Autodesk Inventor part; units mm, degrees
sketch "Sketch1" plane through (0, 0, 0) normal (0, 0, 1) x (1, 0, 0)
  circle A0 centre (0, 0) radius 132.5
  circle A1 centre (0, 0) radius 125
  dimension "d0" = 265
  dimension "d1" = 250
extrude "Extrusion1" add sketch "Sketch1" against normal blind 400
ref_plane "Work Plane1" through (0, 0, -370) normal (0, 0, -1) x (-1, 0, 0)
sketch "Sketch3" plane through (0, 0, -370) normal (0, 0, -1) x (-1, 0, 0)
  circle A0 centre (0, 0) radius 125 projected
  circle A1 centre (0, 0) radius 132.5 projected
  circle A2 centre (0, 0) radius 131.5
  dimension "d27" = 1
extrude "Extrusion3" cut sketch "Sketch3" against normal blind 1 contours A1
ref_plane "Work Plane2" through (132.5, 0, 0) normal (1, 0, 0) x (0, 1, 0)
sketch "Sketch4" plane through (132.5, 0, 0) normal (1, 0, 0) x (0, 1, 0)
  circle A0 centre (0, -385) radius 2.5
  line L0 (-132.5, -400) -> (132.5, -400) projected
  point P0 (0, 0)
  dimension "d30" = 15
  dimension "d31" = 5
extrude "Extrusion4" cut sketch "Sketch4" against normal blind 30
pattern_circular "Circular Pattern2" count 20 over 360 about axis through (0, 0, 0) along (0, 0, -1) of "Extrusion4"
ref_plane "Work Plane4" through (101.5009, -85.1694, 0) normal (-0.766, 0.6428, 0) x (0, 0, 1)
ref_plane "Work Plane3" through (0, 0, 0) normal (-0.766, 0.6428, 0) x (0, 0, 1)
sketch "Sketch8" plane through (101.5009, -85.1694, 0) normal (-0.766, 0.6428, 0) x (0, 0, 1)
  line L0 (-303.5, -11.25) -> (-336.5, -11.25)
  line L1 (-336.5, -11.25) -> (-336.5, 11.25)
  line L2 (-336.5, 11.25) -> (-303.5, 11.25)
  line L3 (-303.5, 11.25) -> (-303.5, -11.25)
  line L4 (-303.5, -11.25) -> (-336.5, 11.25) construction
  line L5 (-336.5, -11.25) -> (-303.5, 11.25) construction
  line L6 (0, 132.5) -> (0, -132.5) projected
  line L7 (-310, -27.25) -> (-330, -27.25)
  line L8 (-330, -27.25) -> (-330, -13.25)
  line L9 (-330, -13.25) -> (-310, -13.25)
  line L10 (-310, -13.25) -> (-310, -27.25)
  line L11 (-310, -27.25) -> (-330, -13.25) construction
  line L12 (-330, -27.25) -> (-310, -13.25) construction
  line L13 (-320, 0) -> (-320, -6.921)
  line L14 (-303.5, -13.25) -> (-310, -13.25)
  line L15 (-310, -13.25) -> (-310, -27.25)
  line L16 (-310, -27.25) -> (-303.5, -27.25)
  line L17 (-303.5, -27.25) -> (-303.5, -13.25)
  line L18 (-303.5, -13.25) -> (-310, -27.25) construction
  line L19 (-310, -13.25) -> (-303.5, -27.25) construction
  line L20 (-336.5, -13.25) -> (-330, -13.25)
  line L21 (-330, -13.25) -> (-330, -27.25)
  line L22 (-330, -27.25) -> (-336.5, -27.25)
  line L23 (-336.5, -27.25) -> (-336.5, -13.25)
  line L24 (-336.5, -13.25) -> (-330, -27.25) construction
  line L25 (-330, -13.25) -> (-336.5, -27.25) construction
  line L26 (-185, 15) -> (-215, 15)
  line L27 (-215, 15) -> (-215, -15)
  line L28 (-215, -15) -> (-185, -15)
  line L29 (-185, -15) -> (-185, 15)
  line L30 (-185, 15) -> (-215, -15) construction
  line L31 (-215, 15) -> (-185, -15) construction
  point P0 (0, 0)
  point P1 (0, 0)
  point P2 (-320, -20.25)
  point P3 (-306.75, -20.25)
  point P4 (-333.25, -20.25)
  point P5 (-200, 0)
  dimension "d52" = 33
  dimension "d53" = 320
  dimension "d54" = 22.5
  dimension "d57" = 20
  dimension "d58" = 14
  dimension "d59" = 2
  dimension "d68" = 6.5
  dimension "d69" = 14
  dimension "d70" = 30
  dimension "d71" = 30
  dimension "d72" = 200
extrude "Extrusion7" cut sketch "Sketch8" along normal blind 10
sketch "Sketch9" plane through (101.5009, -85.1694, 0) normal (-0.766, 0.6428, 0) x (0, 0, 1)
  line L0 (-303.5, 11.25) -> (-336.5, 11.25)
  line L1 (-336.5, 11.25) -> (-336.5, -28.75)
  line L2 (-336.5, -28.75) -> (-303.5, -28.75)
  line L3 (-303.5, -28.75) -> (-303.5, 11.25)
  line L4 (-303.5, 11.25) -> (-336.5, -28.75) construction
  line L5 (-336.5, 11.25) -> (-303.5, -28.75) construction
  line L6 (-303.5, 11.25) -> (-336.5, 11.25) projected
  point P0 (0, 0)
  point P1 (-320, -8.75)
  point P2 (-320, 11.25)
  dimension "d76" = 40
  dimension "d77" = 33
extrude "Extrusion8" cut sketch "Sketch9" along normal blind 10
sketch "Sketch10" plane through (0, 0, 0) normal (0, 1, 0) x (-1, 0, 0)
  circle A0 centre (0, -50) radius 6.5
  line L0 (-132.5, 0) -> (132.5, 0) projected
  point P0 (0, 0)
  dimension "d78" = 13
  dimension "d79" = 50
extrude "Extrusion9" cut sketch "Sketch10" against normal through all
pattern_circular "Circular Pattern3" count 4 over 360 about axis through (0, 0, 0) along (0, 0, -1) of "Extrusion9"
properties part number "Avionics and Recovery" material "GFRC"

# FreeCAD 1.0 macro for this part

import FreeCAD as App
import Part
import Sketcher
from FreeCAD import Vector

doc = App.newDocument("Part")
body = doc.addObject("PartDesign::Body", "Body")

sketch1 = body.newObject("Sketcher::SketchObject", "Sketch")
sketch1.AttachmentSupport = (doc.getObject("XY_Plane"), [""])
sketch1.MapMode = "FlatFace"
sketch1.addGeometry(Part.Circle(Vector(0, 0, 0), Vector(0, 0, 1), 132.5), False)
sketch1.addGeometry(Part.Circle(Vector(0, 0, 0), Vector(0, 0, 1), 125), False)
sketch1.addConstraint(Sketcher.Constraint("Coincident", 0, 3, -1, 1))
sketch1.addConstraint(Sketcher.Constraint("Coincident", 1, 3, -1, 1))
sketch1.addConstraint(Sketcher.Constraint("Diameter", 0, 265.0))
sketch1.addConstraint(Sketcher.Constraint("Diameter", 1, 250.0))
pad1 = body.newObject("PartDesign::Pad", "Pad")
pad1.Profile = sketch1
pad1.Length = 400
pad1.Reversed = True

sketch2 = body.newObject("Sketcher::SketchObject", "Sketch001")
sketch2.AttachmentSupport = (doc.getObject("XY_Plane"), [""])
sketch2.MapMode = "FlatFace"
sketch2.AttachmentOffset = App.Placement(Vector(0, 0, -370), App.Rotation())
sketch2.addGeometry(Part.Circle(Vector(0, 0, 0), Vector(0, 0, 1), 132.5), False)
sketch2.addGeometry(Part.Circle(Vector(0, 0, 0), Vector(0, 0, 1), 131.5), False)
sketch2.addConstraint(Sketcher.Constraint("Coincident", 0, 3, -1, 1))
sketch2.addConstraint(Sketcher.Constraint("Coincident", 1, 3, -1, 1))
sketch2.addConstraint(Sketcher.Constraint("Diameter", 0, 265.0))
sketch2.addConstraint(Sketcher.Constraint("Diameter", 1, 263.0))
pocket1 = body.newObject("PartDesign::Pocket", "Pocket")
pocket1.Profile = sketch2
pocket1.Length = 1
pocket1.Reversed = True

sketch3 = body.newObject("Sketcher::SketchObject", "Sketch002")
sketch3.AttachmentSupport = (doc.getObject("YZ_Plane"), [""])
sketch3.MapMode = "FlatFace"
sketch3.AttachmentOffset = App.Placement(Vector(0, 0, 132.5), App.Rotation())
sketch3.addGeometry(Part.Circle(Vector(0, -385, 0), Vector(0, 0, 1), 2.5), False)
sketch3.addConstraint(Sketcher.Constraint("PointOnObject", 0, 3, -2))
sketch3.addConstraint(Sketcher.Constraint("Diameter", 0, 5.0))
sketch3.addConstraint(Sketcher.Constraint("DistanceY", 0, 3, -1, 1, 385.0))
pocket2 = body.newObject("PartDesign::Pocket", "Pocket001")
pocket2.Profile = sketch3
pocket2.Length = 30
doc.recompute()

polarpattern = body.newObject("PartDesign::PolarPattern", "PolarPattern")
polarpattern.Originals = [pocket2]
polarpattern.Axis = (doc.getObject("Z_Axis"), [""])
polarpattern.Angle = 360
polarpattern.Occurrences = 20
body.Tip = polarpattern

sketch4 = body.newObject("Sketcher::SketchObject", "Sketch003")
sketch4.Placement = App.Placement(Vector(101.5009, -85.1694, 0), App.Rotation(Vector(0, 0, 1), Vector(0.64278761, 0.766044443, 0), Vector(-0.766044443, 0.64278761, 0), "ZXY"))
sketch4.addGeometry(Part.LineSegment(Vector(-336.5, -11.25, 0), Vector(-303.5, -11.25, 0)), False)
sketch4.addGeometry(Part.LineSegment(Vector(-303.5, -11.25, 0), Vector(-303.5, 11.25, 0)), False)
sketch4.addGeometry(Part.LineSegment(Vector(-303.5, 11.25, 0), Vector(-336.5, 11.25, 0)), False)
sketch4.addGeometry(Part.LineSegment(Vector(-336.5, 11.25, 0), Vector(-336.5, -11.25, 0)), False)
sketch4.addGeometry(Part.LineSegment(Vector(-303.5, -27.25, 0), Vector(-303.5, -13.25, 0)), False)
sketch4.addGeometry(Part.LineSegment(Vector(-303.5, -13.25, 0), Vector(-336.5, -13.25, 0)), False)
sketch4.addGeometry(Part.LineSegment(Vector(-336.5, -13.25, 0), Vector(-336.5, -27.25, 0)), False)
sketch4.addGeometry(Part.LineSegment(Vector(-336.5, -27.25, 0), Vector(-303.5, -27.25, 0)), False)
sketch4.addGeometry(Part.LineSegment(Vector(-185, -15, 0), Vector(-185, 15, 0)), False)
sketch4.addGeometry(Part.LineSegment(Vector(-185, 15, 0), Vector(-215, 15, 0)), False)
sketch4.addGeometry(Part.LineSegment(Vector(-215, 15, 0), Vector(-215, -15, 0)), False)
sketch4.addGeometry(Part.LineSegment(Vector(-215, -15, 0), Vector(-185, -15, 0)), False)
sketch4.addConstraint(Sketcher.Constraint("Coincident", 0, 2, 1, 1))
sketch4.addConstraint(Sketcher.Constraint("Coincident", 1, 2, 2, 1))
sketch4.addConstraint(Sketcher.Constraint("Coincident", 2, 2, 3, 1))
sketch4.addConstraint(Sketcher.Constraint("Coincident", 3, 2, 0, 1))
sketch4.addConstraint(Sketcher.Constraint("Coincident", 4, 2, 5, 1))
sketch4.addConstraint(Sketcher.Constraint("Coincident", 5, 2, 6, 1))
sketch4.addConstraint(Sketcher.Constraint("Coincident", 6, 2, 7, 1))
sketch4.addConstraint(Sketcher.Constraint("Coincident", 7, 2, 4, 1))
sketch4.addConstraint(Sketcher.Constraint("Coincident", 8, 2, 9, 1))
sketch4.addConstraint(Sketcher.Constraint("Coincident", 9, 2, 10, 1))
sketch4.addConstraint(Sketcher.Constraint("Coincident", 10, 2, 11, 1))
sketch4.addConstraint(Sketcher.Constraint("Coincident", 11, 2, 8, 1))
sketch4.addConstraint(Sketcher.Constraint("Horizontal", 0))
sketch4.addConstraint(Sketcher.Constraint("Vertical", 1))
sketch4.addConstraint(Sketcher.Constraint("Horizontal", 2))
sketch4.addConstraint(Sketcher.Constraint("Vertical", 3))
sketch4.addConstraint(Sketcher.Constraint("Vertical", 4))
sketch4.addConstraint(Sketcher.Constraint("Horizontal", 5))
sketch4.addConstraint(Sketcher.Constraint("Vertical", 6))
sketch4.addConstraint(Sketcher.Constraint("Horizontal", 7))
sketch4.addConstraint(Sketcher.Constraint("Vertical", 8))
sketch4.addConstraint(Sketcher.Constraint("Horizontal", 9))
sketch4.addConstraint(Sketcher.Constraint("Vertical", 10))
sketch4.addConstraint(Sketcher.Constraint("Horizontal", 11))
sketch4.addConstraint(Sketcher.Constraint("Vertical", 1, 2, 4, 2))
sketch4.addConstraint(Sketcher.Constraint("Vertical", 3, 2, 5, 2))
sketch4.addConstraint(Sketcher.Constraint("Equal", 11, 8))
sketch4.addConstraint(Sketcher.Constraint("DistanceX", 0, 1, 0, 2, 33.0))
sketch4.addConstraint(Sketcher.Constraint("DistanceX", 9, 2, 9, 1, 30.0))
sketch4.addConstraint(Sketcher.Constraint("DistanceY", 4, 1, 4, 2, 14.0))
sketch4.addConstraint(Sketcher.Constraint("DistanceY", 1, 1, 1, 2, 22.5))
sketch4.addConstraint(Sketcher.Constraint("DistanceY", 4, 2, 0, 2, 2.0))
sketch4.addConstraint(Sketcher.Constraint("DistanceX", 8, 2, -1, 1, 185.0))
sketch4.addConstraint(Sketcher.Constraint("DistanceY", -1, 1, 8, 2, 15.0))
sketch4.addConstraint(Sketcher.Constraint("DistanceX", 0, 2, -1, 1, 303.5))
sketch4.addConstraint(Sketcher.Constraint("DistanceY", 0, 2, -1, 1, 11.25))
pocket3 = body.newObject("PartDesign::Pocket", "Pocket002")
pocket3.Profile = sketch4
pocket3.Length = 10
pocket3.Reversed = True

sketch5 = body.newObject("Sketcher::SketchObject", "Sketch004")
sketch5.Placement = App.Placement(Vector(101.5009, -85.1694, 0), App.Rotation(Vector(0, 0, 1), Vector(0.64278761, 0.766044443, 0), Vector(-0.766044443, 0.64278761, 0), "ZXY"))
sketch5.addGeometry(Part.LineSegment(Vector(-303.5, -28.75, 0), Vector(-303.5, 11.25, 0)), False)
sketch5.addGeometry(Part.LineSegment(Vector(-303.5, 11.25, 0), Vector(-336.5, 11.25, 0)), False)
sketch5.addGeometry(Part.LineSegment(Vector(-336.5, 11.25, 0), Vector(-336.5, -28.75, 0)), False)
sketch5.addGeometry(Part.LineSegment(Vector(-336.5, -28.75, 0), Vector(-303.5, -28.75, 0)), False)
sketch5.addConstraint(Sketcher.Constraint("Coincident", 0, 2, 1, 1))
sketch5.addConstraint(Sketcher.Constraint("Coincident", 1, 2, 2, 1))
sketch5.addConstraint(Sketcher.Constraint("Coincident", 2, 2, 3, 1))
sketch5.addConstraint(Sketcher.Constraint("Coincident", 3, 2, 0, 1))
sketch5.addConstraint(Sketcher.Constraint("Vertical", 0))
sketch5.addConstraint(Sketcher.Constraint("Horizontal", 1))
sketch5.addConstraint(Sketcher.Constraint("Vertical", 2))
sketch5.addConstraint(Sketcher.Constraint("Horizontal", 3))
sketch5.addConstraint(Sketcher.Constraint("DistanceX", 1, 2, 1, 1, 33.0))
sketch5.addConstraint(Sketcher.Constraint("DistanceY", 0, 1, 0, 2, 40.0))
sketch5.addConstraint(Sketcher.Constraint("DistanceX", 0, 2, -1, 1, 303.5))
sketch5.addConstraint(Sketcher.Constraint("DistanceY", -1, 1, 0, 2, 11.25))
pocket4 = body.newObject("PartDesign::Pocket", "Pocket003")
pocket4.Profile = sketch5
pocket4.Length = 10
pocket4.Reversed = True

sketch6 = body.newObject("Sketcher::SketchObject", "Sketch005")
sketch6.AttachmentSupport = (doc.getObject("XZ_Plane"), [""])
sketch6.MapMode = "FlatFace"
sketch6.addGeometry(Part.Circle(Vector(0, -50, 0), Vector(0, 0, 1), 6.5), False)
sketch6.addConstraint(Sketcher.Constraint("PointOnObject", 0, 3, -2))
sketch6.addConstraint(Sketcher.Constraint("Diameter", 0, 13.0))
sketch6.addConstraint(Sketcher.Constraint("DistanceY", 0, 3, -1, 1, 50.0))
pocket5 = body.newObject("PartDesign::Pocket", "Pocket004")
pocket5.Profile = sketch6
pocket5.Type = "ThroughAll"
pocket5.Reversed = True
doc.recompute()

polarpattern2 = body.newObject("PartDesign::PolarPattern", "PolarPattern001")
polarpattern2.Originals = [pocket5]
polarpattern2.Axis = (doc.getObject("Z_Axis"), [""])
polarpattern2.Angle = 360
polarpattern2.Occurrences = 4
body.Tip = polarpattern2

doc.recompute()
